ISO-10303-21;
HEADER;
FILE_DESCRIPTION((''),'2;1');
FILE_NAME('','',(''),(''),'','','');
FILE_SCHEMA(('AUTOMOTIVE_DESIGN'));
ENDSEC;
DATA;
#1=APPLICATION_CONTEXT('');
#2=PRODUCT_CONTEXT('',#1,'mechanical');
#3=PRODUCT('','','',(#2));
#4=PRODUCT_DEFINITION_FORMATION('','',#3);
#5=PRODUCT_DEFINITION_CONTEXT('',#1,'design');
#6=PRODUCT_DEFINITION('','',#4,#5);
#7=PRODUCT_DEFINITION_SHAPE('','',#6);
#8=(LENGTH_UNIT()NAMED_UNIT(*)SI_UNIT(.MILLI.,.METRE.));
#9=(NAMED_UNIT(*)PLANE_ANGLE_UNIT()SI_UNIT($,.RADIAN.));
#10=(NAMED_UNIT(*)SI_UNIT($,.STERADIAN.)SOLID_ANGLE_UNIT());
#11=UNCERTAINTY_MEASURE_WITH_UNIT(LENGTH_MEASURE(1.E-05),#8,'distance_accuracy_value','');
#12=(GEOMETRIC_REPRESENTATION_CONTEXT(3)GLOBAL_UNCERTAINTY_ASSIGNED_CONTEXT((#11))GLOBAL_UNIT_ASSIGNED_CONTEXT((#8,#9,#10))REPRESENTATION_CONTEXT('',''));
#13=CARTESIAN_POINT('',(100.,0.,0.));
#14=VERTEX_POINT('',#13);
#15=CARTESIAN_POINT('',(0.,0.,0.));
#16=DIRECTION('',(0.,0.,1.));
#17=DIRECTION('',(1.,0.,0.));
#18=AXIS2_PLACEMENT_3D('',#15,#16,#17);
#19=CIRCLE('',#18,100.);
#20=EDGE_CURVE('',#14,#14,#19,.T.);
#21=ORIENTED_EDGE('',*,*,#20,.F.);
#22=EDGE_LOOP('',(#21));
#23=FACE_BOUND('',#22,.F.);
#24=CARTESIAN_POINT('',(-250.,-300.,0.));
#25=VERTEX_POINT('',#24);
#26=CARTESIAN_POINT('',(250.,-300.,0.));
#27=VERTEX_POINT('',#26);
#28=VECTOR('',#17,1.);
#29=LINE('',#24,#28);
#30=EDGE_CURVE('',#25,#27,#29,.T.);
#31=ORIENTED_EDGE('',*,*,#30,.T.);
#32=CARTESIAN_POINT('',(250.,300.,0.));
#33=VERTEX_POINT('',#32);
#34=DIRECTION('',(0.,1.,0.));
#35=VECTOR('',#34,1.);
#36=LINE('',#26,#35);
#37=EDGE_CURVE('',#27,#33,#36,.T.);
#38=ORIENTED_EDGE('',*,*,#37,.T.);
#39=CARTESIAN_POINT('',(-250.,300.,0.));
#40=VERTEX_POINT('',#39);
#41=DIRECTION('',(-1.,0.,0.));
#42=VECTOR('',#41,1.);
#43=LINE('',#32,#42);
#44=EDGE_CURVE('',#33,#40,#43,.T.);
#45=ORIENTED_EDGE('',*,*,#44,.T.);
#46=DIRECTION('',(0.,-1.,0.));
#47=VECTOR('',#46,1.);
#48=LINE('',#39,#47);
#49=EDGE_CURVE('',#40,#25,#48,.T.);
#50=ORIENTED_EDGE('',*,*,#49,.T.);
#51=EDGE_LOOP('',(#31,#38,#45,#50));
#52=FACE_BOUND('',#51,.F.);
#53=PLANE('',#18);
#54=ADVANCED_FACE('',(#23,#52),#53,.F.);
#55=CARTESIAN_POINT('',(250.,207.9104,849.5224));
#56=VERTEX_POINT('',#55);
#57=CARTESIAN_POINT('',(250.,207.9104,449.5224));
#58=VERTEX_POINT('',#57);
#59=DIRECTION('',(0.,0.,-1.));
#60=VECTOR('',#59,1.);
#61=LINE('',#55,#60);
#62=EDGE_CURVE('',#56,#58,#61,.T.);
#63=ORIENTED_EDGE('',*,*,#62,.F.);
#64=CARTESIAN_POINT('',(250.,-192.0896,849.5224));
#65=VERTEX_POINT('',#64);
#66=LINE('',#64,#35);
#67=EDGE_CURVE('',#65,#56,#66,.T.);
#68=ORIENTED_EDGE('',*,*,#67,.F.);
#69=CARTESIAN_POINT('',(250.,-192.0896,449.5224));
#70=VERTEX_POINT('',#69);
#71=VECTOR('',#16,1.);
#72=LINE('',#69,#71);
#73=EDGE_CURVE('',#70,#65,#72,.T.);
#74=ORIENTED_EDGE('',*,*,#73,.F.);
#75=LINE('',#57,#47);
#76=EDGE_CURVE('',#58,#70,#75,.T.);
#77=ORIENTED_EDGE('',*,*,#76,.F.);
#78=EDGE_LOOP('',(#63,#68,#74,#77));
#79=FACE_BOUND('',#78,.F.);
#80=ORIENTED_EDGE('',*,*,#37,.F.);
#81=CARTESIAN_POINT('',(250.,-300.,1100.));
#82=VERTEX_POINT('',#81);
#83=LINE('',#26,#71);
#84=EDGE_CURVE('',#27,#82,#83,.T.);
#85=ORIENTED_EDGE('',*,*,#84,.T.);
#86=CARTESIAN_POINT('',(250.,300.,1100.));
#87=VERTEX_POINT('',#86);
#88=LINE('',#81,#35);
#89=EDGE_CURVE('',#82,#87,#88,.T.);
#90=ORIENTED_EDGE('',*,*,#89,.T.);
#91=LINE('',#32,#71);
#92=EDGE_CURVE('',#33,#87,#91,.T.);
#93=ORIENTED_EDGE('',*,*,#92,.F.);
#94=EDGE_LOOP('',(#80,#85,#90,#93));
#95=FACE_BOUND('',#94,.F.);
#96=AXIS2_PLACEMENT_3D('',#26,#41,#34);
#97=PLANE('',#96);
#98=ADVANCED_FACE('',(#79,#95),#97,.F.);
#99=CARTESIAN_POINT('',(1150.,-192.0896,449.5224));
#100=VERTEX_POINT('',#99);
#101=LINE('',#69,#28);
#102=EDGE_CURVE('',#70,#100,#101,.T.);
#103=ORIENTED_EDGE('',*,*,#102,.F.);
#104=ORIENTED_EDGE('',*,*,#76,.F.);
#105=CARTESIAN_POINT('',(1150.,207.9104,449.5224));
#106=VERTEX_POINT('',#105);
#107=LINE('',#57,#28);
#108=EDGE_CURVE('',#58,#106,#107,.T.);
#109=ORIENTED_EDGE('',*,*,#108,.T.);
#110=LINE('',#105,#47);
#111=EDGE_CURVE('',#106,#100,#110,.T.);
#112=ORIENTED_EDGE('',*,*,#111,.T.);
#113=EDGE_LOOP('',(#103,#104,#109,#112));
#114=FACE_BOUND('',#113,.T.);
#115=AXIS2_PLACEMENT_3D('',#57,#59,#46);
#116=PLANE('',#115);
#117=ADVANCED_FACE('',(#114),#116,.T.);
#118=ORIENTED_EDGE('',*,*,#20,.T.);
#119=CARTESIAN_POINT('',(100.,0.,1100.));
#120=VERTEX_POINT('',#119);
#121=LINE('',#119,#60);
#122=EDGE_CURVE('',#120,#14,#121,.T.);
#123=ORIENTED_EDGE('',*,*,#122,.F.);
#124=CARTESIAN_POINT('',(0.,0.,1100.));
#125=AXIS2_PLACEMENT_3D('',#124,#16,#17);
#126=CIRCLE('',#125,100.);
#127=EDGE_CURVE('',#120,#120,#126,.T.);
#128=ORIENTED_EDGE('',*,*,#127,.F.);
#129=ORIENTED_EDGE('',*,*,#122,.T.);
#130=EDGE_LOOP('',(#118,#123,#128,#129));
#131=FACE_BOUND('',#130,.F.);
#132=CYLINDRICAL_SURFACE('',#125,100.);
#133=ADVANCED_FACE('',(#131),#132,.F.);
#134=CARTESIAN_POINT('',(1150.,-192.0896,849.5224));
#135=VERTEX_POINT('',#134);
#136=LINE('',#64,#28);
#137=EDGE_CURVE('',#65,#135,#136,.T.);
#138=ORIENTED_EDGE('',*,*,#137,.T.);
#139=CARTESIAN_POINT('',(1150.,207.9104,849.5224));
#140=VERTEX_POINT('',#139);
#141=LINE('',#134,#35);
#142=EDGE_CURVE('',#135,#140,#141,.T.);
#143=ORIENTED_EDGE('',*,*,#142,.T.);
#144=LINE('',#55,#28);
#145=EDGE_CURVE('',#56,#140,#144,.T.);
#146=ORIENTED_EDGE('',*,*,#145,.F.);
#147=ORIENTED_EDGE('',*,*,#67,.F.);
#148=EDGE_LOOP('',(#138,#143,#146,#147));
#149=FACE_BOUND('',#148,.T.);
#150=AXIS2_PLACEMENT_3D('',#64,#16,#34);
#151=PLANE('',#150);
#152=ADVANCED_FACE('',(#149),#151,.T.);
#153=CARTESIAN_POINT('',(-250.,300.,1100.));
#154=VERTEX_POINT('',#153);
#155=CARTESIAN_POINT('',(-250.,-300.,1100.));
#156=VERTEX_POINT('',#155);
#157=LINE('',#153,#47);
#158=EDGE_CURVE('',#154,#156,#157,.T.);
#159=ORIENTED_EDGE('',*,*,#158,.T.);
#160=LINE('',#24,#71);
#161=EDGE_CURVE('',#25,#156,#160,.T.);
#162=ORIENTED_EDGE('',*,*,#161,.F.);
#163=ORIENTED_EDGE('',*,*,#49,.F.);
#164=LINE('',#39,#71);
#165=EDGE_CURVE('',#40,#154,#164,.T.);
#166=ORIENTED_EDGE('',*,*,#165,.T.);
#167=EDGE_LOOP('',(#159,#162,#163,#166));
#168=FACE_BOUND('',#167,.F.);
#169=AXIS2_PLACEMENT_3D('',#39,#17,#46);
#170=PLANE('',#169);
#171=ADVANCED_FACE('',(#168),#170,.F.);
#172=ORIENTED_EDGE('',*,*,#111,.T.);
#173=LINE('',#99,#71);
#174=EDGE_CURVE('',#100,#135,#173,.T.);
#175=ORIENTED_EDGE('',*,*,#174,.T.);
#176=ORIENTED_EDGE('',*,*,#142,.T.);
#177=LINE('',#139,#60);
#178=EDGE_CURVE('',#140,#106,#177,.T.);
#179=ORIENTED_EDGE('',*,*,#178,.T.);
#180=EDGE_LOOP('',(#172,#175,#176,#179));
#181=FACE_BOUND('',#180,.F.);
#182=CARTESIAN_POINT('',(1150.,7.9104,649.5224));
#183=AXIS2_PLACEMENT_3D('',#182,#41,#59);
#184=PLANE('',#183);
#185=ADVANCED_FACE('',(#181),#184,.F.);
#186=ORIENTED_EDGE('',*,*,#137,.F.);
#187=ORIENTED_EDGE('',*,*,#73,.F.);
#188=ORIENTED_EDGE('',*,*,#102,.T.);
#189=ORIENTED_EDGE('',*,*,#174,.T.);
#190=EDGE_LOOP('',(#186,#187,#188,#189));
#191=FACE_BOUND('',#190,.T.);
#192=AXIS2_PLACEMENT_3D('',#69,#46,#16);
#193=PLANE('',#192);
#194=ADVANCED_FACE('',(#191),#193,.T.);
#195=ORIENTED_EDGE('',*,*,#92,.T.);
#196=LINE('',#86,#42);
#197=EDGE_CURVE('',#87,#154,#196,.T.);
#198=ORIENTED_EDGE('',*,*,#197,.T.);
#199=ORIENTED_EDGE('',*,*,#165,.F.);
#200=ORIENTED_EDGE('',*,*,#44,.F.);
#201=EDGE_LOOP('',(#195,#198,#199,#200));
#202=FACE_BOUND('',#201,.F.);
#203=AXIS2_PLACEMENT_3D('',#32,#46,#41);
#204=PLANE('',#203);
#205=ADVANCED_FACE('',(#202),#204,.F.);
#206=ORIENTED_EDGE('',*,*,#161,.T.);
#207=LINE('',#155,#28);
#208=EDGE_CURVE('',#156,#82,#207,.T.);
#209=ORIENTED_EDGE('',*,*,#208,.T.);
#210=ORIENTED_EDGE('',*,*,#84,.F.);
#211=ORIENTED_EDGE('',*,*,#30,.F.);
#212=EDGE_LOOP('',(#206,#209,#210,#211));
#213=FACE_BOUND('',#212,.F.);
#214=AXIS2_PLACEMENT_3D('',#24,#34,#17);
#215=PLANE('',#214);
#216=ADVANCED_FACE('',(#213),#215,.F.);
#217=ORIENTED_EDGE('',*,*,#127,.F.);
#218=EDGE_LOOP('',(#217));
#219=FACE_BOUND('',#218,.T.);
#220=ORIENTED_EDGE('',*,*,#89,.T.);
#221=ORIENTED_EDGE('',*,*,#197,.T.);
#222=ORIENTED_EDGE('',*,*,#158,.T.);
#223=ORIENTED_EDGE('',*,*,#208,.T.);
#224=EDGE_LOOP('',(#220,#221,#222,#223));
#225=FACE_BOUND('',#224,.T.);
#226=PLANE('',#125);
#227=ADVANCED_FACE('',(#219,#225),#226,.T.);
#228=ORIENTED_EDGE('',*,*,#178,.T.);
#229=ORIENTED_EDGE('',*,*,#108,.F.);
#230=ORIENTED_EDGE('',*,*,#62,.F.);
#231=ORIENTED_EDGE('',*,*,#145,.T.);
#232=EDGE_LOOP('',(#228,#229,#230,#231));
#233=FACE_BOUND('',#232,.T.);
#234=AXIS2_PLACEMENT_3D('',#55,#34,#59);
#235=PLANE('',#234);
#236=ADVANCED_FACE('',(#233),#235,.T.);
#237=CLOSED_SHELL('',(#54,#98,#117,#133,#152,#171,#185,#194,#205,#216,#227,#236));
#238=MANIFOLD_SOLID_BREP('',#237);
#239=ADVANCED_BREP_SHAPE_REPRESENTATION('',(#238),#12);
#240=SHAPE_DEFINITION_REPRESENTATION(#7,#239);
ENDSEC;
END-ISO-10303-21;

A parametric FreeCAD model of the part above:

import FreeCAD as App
import Part
import Sketcher
from FreeCAD import Vector
Q = App.Units.Quantity


def add_polygon(sketch, points):
    """Adds a closed chain of lines whose ends are joined by coincident constraints."""
    first, n = sketch.GeometryCount, len(points)
    for a, b in zip(points, points[1:] + points[:1]):
        sketch.addGeometry(Part.LineSegment(App.Vector(*a, 0), App.Vector(*b, 0)), False)
    for i in range(n):
        sketch.addConstraint(Sketcher.Constraint("Coincident", first + i, 2, first + (i + 1) % n, 1))

doc = App.newDocument("Part")
body = doc.addObject("PartDesign::Body", "Body")

# Sketch on XY plane
sketch1 = body.newObject("Sketcher::SketchObject", "Sketch")
sketch1.AttachmentSupport = (doc.getObject("XY_Plane"), [""])
sketch1.MapMode = "FlatFace"
add_polygon(sketch1, [(-250, 300), (-250, -300), (250, -300), (250, 300)])  # lines 0-3
sketch1.addConstraint([
    Sketcher.Constraint("Vertical", 0),
    Sketcher.Constraint("Horizontal", 1),
    Sketcher.Constraint("Vertical", 2),
    Sketcher.Constraint("Horizontal", 3),
    Sketcher.Constraint("Symmetric", 0, 2, 2, 2, -1, 1),
    Sketcher.Constraint("DistanceX", 0, 2, -1, 1, Q("250 mm")),
    Sketcher.Constraint("DistanceY", 0, 2, 0, 1, Q("600 mm")),
])
pad1 = body.newObject("PartDesign::Pad", "Pad")
pad1.Profile = sketch1
pad1.Length = 1100

# Sketch on XY plane
sketch2 = body.newObject("Sketcher::SketchObject", "Sketch001")
sketch2.AttachmentSupport = (doc.getObject("XY_Plane"), [""])
sketch2.MapMode = "FlatFace"
sketch2.AttachmentOffset = App.Placement(Vector(0, 0, 1100), App.Rotation())
sketch2.addGeometry(Part.Circle(Vector(0, 0, 0), Vector(0, 0, 1), 100), False)
sketch2.addConstraint([
    Sketcher.Constraint("Coincident", 0, 3, -1, 1),
    Sketcher.Constraint("Diameter", 0, Q("200 mm")),
])
pocket1 = body.newObject("PartDesign::Pocket", "Pocket")
pocket1.Profile = sketch2
pocket1.Type = "UpToFirst"

# Sketch on YZ plane
sketch3 = body.newObject("Sketcher::SketchObject", "Sketch002")
sketch3.AttachmentSupport = (doc.getObject("YZ_Plane"), [""])
sketch3.MapMode = "FlatFace"
sketch3.AttachmentOffset = App.Placement(Vector(0, 0, 250), App.Rotation())
add_polygon(sketch3, [(207.9104, 849.5224), (-192.0896, 849.5224), (-192.0896, 449.5224), (207.9104, 449.5224)])  # lines 0-3
sketch3.addConstraint([
    Sketcher.Constraint("Horizontal", 0),
    Sketcher.Constraint("Vertical", 1),
    Sketcher.Constraint("Horizontal", 2),
    Sketcher.Constraint("Vertical", 3),
    Sketcher.Constraint("Equal", 2, 1),
    Sketcher.Constraint("DistanceX", 0, 2, 0, 1, Q("400 mm")),
    Sketcher.Constraint("DistanceX", 0, 2, -1, 1, Q("192.0896 mm")),
    Sketcher.Constraint("DistanceY", -1, 1, 0, 2, Q("849.5224 mm")),
])
pad2 = body.newObject("PartDesign::Pad", "Pad001")
pad2.Profile = sketch3
pad2.Length = 900

doc.recompute()
